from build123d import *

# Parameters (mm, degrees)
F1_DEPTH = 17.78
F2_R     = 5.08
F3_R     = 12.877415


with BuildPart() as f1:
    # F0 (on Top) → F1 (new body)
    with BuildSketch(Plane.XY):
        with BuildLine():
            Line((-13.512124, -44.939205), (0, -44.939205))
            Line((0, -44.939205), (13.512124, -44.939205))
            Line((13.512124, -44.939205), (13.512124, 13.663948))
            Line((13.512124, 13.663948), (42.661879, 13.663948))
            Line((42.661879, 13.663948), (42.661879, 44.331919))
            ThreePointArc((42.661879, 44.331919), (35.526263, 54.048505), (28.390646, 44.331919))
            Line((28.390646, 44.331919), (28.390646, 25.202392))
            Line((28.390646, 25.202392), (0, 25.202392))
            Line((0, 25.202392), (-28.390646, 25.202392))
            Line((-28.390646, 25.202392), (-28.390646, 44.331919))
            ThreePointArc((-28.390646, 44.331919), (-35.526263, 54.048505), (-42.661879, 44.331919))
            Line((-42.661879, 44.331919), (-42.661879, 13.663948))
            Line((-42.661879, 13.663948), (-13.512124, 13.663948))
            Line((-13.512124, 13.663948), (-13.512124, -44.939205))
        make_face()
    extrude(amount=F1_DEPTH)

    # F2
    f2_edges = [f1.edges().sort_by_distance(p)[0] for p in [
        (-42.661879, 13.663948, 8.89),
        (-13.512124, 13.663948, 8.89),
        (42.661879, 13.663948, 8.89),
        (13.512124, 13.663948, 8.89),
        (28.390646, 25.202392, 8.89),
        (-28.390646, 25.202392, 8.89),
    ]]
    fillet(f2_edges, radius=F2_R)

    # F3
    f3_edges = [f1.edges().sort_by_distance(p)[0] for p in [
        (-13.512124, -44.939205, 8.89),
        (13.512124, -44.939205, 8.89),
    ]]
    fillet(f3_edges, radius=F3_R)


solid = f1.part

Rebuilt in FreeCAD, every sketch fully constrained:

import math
import FreeCAD as App
import Part
import Sketcher
Q = App.Units.Quantity


def edges_at(feature, points):
    """Names of the edges that pass closest to the given points."""
    edges = feature.Shape.Edges
    near = lambda p: min(range(len(edges)), key=lambda i: edges[i].distToShape(Part.Vertex(*p))[0])
    return sorted({f"Edge{near(p) + 1}" for p in points})

doc = App.newDocument("Part")
body = doc.addObject("PartDesign::Body", "Body")

sketch1 = body.newObject("Sketcher::SketchObject", "Sketch")
sketch1.AttachmentSupport = (doc.getObject("XY_Plane"), [""])
sketch1.MapMode = "FlatFace"
sketch1.addGeometry([
    Part.LineSegment(App.Vector(-14, -45, 0), App.Vector(14, -45, 0)),
    Part.LineSegment(App.Vector(14, -45, 0), App.Vector(14, 14, 0)),
    Part.LineSegment(App.Vector(14, 14, 0), App.Vector(43, 14, 0)),
    Part.LineSegment(App.Vector(43, 14, 0), App.Vector(43, 44, 0)),
    Part.ArcOfCircle(Part.Circle(App.Vector(36, 47, 0), App.Vector(0, 0, 1), 7), math.radians(-17), math.radians(197)),
    Part.LineSegment(App.Vector(28, 44, 0), App.Vector(28, 25, 0)),
    Part.LineSegment(App.Vector(28, 25, 0), App.Vector(-28, 25, 0)),
    Part.LineSegment(App.Vector(-28, 25, 0), App.Vector(-28, 44, 0)),
    Part.ArcOfCircle(Part.Circle(App.Vector(-36, 47, 0), App.Vector(0, 0, 1), 7), math.radians(-17), math.radians(197)),
    Part.LineSegment(App.Vector(-43, 44, 0), App.Vector(-43, 14, 0)),
    Part.LineSegment(App.Vector(-43, 14, 0), App.Vector(-14, 14, 0)),
    Part.LineSegment(App.Vector(-14, 14, 0), App.Vector(-14, -45, 0)),
], False)
sketch1.addConstraint([
    Sketcher.Constraint("Coincident", 0, 2, 1, 1),
    Sketcher.Constraint("Coincident", 1, 2, 2, 1),
    Sketcher.Constraint("Coincident", 2, 2, 3, 1),
    Sketcher.Constraint("Coincident", 3, 2, 4, 1),
    Sketcher.Constraint("Coincident", 4, 2, 5, 1),
    Sketcher.Constraint("Coincident", 5, 2, 6, 1),
    Sketcher.Constraint("Coincident", 6, 2, 7, 1),
    Sketcher.Constraint("Coincident", 7, 2, 8, 1),
    Sketcher.Constraint("Coincident", 8, 2, 9, 1),
    Sketcher.Constraint("Coincident", 9, 2, 10, 1),
    Sketcher.Constraint("Coincident", 10, 2, 11, 1),
    Sketcher.Constraint("Coincident", 11, 2, 0, 1),
    Sketcher.Constraint("Horizontal", 0),
    Sketcher.Constraint("Vertical", 1),
    Sketcher.Constraint("Horizontal", 2),
    Sketcher.Constraint("Vertical", 3),
    Sketcher.Constraint("Vertical", 5),
    Sketcher.Constraint("Horizontal", 6),
    Sketcher.Constraint("Vertical", 7),
    Sketcher.Constraint("Vertical", 9),
    Sketcher.Constraint("Horizontal", 10),
    Sketcher.Constraint("Vertical", 11),
    Sketcher.Constraint("Equal", 4, 8),
    Sketcher.Constraint("Symmetric", 4, 3, 8, 3, -2),
    Sketcher.Constraint("Symmetric", 2, 2, 9, 2, -2),
    Sketcher.Constraint("Horizontal", 3, 2, 4, 2),
    Sketcher.Constraint("Horizontal", 4, 2, 7, 2),
    Sketcher.Constraint("Equal", 2, 10),
    Sketcher.Constraint("Radius", 4, 7.478402),
    Sketcher.Constraint("DistanceX", 0, 1, 0, 2, 27.024248),
    Sketcher.Constraint("DistanceY", 3, 1, 3, 2, 30.667971),
    Sketcher.Constraint("DistanceX", 2, 1, 2, 2, 29.149755),
    Sketcher.Constraint("DistanceX", 6, 2, 6, 1, 56.781292),
    Sketcher.Constraint("DistanceY", 1, 1, 1, 2, 58.603153),
    Sketcher.Constraint("DistanceY", 5, 2, 5, 1, 19.129527),
    Sketcher.Constraint("DistanceY", -1, 1, 3, 2, 44.331919),
])
pad1 = body.newObject("PartDesign::Pad", "Pad")
pad1.Profile = sketch1
pad1.Length = Q("0.7 in")
doc.recompute()

fillet = body.newObject("PartDesign::Fillet", "Fillet")
fillet.Base = (pad1, edges_at(pad1, [
    (-42.662, 13.664, 8.89),
    (-13.512, 13.664, 8.89),
    (42.662, 13.664, 8.89),
    (13.512, 13.664, 8.89),
    (28.391, 25.202, 8.89),
    (-28.391, 25.202, 8.89),
]))
fillet.Radius = Q("0.2 in")
doc.recompute()

fillet2 = body.newObject("PartDesign::Fillet", "Fillet001")
fillet2.Base = (fillet, edges_at(fillet, [(-13.512, -44.939, 8.89), (13.512, -44.939, 8.89)]))
fillet2.Radius = 12.877415

doc.recompute()
